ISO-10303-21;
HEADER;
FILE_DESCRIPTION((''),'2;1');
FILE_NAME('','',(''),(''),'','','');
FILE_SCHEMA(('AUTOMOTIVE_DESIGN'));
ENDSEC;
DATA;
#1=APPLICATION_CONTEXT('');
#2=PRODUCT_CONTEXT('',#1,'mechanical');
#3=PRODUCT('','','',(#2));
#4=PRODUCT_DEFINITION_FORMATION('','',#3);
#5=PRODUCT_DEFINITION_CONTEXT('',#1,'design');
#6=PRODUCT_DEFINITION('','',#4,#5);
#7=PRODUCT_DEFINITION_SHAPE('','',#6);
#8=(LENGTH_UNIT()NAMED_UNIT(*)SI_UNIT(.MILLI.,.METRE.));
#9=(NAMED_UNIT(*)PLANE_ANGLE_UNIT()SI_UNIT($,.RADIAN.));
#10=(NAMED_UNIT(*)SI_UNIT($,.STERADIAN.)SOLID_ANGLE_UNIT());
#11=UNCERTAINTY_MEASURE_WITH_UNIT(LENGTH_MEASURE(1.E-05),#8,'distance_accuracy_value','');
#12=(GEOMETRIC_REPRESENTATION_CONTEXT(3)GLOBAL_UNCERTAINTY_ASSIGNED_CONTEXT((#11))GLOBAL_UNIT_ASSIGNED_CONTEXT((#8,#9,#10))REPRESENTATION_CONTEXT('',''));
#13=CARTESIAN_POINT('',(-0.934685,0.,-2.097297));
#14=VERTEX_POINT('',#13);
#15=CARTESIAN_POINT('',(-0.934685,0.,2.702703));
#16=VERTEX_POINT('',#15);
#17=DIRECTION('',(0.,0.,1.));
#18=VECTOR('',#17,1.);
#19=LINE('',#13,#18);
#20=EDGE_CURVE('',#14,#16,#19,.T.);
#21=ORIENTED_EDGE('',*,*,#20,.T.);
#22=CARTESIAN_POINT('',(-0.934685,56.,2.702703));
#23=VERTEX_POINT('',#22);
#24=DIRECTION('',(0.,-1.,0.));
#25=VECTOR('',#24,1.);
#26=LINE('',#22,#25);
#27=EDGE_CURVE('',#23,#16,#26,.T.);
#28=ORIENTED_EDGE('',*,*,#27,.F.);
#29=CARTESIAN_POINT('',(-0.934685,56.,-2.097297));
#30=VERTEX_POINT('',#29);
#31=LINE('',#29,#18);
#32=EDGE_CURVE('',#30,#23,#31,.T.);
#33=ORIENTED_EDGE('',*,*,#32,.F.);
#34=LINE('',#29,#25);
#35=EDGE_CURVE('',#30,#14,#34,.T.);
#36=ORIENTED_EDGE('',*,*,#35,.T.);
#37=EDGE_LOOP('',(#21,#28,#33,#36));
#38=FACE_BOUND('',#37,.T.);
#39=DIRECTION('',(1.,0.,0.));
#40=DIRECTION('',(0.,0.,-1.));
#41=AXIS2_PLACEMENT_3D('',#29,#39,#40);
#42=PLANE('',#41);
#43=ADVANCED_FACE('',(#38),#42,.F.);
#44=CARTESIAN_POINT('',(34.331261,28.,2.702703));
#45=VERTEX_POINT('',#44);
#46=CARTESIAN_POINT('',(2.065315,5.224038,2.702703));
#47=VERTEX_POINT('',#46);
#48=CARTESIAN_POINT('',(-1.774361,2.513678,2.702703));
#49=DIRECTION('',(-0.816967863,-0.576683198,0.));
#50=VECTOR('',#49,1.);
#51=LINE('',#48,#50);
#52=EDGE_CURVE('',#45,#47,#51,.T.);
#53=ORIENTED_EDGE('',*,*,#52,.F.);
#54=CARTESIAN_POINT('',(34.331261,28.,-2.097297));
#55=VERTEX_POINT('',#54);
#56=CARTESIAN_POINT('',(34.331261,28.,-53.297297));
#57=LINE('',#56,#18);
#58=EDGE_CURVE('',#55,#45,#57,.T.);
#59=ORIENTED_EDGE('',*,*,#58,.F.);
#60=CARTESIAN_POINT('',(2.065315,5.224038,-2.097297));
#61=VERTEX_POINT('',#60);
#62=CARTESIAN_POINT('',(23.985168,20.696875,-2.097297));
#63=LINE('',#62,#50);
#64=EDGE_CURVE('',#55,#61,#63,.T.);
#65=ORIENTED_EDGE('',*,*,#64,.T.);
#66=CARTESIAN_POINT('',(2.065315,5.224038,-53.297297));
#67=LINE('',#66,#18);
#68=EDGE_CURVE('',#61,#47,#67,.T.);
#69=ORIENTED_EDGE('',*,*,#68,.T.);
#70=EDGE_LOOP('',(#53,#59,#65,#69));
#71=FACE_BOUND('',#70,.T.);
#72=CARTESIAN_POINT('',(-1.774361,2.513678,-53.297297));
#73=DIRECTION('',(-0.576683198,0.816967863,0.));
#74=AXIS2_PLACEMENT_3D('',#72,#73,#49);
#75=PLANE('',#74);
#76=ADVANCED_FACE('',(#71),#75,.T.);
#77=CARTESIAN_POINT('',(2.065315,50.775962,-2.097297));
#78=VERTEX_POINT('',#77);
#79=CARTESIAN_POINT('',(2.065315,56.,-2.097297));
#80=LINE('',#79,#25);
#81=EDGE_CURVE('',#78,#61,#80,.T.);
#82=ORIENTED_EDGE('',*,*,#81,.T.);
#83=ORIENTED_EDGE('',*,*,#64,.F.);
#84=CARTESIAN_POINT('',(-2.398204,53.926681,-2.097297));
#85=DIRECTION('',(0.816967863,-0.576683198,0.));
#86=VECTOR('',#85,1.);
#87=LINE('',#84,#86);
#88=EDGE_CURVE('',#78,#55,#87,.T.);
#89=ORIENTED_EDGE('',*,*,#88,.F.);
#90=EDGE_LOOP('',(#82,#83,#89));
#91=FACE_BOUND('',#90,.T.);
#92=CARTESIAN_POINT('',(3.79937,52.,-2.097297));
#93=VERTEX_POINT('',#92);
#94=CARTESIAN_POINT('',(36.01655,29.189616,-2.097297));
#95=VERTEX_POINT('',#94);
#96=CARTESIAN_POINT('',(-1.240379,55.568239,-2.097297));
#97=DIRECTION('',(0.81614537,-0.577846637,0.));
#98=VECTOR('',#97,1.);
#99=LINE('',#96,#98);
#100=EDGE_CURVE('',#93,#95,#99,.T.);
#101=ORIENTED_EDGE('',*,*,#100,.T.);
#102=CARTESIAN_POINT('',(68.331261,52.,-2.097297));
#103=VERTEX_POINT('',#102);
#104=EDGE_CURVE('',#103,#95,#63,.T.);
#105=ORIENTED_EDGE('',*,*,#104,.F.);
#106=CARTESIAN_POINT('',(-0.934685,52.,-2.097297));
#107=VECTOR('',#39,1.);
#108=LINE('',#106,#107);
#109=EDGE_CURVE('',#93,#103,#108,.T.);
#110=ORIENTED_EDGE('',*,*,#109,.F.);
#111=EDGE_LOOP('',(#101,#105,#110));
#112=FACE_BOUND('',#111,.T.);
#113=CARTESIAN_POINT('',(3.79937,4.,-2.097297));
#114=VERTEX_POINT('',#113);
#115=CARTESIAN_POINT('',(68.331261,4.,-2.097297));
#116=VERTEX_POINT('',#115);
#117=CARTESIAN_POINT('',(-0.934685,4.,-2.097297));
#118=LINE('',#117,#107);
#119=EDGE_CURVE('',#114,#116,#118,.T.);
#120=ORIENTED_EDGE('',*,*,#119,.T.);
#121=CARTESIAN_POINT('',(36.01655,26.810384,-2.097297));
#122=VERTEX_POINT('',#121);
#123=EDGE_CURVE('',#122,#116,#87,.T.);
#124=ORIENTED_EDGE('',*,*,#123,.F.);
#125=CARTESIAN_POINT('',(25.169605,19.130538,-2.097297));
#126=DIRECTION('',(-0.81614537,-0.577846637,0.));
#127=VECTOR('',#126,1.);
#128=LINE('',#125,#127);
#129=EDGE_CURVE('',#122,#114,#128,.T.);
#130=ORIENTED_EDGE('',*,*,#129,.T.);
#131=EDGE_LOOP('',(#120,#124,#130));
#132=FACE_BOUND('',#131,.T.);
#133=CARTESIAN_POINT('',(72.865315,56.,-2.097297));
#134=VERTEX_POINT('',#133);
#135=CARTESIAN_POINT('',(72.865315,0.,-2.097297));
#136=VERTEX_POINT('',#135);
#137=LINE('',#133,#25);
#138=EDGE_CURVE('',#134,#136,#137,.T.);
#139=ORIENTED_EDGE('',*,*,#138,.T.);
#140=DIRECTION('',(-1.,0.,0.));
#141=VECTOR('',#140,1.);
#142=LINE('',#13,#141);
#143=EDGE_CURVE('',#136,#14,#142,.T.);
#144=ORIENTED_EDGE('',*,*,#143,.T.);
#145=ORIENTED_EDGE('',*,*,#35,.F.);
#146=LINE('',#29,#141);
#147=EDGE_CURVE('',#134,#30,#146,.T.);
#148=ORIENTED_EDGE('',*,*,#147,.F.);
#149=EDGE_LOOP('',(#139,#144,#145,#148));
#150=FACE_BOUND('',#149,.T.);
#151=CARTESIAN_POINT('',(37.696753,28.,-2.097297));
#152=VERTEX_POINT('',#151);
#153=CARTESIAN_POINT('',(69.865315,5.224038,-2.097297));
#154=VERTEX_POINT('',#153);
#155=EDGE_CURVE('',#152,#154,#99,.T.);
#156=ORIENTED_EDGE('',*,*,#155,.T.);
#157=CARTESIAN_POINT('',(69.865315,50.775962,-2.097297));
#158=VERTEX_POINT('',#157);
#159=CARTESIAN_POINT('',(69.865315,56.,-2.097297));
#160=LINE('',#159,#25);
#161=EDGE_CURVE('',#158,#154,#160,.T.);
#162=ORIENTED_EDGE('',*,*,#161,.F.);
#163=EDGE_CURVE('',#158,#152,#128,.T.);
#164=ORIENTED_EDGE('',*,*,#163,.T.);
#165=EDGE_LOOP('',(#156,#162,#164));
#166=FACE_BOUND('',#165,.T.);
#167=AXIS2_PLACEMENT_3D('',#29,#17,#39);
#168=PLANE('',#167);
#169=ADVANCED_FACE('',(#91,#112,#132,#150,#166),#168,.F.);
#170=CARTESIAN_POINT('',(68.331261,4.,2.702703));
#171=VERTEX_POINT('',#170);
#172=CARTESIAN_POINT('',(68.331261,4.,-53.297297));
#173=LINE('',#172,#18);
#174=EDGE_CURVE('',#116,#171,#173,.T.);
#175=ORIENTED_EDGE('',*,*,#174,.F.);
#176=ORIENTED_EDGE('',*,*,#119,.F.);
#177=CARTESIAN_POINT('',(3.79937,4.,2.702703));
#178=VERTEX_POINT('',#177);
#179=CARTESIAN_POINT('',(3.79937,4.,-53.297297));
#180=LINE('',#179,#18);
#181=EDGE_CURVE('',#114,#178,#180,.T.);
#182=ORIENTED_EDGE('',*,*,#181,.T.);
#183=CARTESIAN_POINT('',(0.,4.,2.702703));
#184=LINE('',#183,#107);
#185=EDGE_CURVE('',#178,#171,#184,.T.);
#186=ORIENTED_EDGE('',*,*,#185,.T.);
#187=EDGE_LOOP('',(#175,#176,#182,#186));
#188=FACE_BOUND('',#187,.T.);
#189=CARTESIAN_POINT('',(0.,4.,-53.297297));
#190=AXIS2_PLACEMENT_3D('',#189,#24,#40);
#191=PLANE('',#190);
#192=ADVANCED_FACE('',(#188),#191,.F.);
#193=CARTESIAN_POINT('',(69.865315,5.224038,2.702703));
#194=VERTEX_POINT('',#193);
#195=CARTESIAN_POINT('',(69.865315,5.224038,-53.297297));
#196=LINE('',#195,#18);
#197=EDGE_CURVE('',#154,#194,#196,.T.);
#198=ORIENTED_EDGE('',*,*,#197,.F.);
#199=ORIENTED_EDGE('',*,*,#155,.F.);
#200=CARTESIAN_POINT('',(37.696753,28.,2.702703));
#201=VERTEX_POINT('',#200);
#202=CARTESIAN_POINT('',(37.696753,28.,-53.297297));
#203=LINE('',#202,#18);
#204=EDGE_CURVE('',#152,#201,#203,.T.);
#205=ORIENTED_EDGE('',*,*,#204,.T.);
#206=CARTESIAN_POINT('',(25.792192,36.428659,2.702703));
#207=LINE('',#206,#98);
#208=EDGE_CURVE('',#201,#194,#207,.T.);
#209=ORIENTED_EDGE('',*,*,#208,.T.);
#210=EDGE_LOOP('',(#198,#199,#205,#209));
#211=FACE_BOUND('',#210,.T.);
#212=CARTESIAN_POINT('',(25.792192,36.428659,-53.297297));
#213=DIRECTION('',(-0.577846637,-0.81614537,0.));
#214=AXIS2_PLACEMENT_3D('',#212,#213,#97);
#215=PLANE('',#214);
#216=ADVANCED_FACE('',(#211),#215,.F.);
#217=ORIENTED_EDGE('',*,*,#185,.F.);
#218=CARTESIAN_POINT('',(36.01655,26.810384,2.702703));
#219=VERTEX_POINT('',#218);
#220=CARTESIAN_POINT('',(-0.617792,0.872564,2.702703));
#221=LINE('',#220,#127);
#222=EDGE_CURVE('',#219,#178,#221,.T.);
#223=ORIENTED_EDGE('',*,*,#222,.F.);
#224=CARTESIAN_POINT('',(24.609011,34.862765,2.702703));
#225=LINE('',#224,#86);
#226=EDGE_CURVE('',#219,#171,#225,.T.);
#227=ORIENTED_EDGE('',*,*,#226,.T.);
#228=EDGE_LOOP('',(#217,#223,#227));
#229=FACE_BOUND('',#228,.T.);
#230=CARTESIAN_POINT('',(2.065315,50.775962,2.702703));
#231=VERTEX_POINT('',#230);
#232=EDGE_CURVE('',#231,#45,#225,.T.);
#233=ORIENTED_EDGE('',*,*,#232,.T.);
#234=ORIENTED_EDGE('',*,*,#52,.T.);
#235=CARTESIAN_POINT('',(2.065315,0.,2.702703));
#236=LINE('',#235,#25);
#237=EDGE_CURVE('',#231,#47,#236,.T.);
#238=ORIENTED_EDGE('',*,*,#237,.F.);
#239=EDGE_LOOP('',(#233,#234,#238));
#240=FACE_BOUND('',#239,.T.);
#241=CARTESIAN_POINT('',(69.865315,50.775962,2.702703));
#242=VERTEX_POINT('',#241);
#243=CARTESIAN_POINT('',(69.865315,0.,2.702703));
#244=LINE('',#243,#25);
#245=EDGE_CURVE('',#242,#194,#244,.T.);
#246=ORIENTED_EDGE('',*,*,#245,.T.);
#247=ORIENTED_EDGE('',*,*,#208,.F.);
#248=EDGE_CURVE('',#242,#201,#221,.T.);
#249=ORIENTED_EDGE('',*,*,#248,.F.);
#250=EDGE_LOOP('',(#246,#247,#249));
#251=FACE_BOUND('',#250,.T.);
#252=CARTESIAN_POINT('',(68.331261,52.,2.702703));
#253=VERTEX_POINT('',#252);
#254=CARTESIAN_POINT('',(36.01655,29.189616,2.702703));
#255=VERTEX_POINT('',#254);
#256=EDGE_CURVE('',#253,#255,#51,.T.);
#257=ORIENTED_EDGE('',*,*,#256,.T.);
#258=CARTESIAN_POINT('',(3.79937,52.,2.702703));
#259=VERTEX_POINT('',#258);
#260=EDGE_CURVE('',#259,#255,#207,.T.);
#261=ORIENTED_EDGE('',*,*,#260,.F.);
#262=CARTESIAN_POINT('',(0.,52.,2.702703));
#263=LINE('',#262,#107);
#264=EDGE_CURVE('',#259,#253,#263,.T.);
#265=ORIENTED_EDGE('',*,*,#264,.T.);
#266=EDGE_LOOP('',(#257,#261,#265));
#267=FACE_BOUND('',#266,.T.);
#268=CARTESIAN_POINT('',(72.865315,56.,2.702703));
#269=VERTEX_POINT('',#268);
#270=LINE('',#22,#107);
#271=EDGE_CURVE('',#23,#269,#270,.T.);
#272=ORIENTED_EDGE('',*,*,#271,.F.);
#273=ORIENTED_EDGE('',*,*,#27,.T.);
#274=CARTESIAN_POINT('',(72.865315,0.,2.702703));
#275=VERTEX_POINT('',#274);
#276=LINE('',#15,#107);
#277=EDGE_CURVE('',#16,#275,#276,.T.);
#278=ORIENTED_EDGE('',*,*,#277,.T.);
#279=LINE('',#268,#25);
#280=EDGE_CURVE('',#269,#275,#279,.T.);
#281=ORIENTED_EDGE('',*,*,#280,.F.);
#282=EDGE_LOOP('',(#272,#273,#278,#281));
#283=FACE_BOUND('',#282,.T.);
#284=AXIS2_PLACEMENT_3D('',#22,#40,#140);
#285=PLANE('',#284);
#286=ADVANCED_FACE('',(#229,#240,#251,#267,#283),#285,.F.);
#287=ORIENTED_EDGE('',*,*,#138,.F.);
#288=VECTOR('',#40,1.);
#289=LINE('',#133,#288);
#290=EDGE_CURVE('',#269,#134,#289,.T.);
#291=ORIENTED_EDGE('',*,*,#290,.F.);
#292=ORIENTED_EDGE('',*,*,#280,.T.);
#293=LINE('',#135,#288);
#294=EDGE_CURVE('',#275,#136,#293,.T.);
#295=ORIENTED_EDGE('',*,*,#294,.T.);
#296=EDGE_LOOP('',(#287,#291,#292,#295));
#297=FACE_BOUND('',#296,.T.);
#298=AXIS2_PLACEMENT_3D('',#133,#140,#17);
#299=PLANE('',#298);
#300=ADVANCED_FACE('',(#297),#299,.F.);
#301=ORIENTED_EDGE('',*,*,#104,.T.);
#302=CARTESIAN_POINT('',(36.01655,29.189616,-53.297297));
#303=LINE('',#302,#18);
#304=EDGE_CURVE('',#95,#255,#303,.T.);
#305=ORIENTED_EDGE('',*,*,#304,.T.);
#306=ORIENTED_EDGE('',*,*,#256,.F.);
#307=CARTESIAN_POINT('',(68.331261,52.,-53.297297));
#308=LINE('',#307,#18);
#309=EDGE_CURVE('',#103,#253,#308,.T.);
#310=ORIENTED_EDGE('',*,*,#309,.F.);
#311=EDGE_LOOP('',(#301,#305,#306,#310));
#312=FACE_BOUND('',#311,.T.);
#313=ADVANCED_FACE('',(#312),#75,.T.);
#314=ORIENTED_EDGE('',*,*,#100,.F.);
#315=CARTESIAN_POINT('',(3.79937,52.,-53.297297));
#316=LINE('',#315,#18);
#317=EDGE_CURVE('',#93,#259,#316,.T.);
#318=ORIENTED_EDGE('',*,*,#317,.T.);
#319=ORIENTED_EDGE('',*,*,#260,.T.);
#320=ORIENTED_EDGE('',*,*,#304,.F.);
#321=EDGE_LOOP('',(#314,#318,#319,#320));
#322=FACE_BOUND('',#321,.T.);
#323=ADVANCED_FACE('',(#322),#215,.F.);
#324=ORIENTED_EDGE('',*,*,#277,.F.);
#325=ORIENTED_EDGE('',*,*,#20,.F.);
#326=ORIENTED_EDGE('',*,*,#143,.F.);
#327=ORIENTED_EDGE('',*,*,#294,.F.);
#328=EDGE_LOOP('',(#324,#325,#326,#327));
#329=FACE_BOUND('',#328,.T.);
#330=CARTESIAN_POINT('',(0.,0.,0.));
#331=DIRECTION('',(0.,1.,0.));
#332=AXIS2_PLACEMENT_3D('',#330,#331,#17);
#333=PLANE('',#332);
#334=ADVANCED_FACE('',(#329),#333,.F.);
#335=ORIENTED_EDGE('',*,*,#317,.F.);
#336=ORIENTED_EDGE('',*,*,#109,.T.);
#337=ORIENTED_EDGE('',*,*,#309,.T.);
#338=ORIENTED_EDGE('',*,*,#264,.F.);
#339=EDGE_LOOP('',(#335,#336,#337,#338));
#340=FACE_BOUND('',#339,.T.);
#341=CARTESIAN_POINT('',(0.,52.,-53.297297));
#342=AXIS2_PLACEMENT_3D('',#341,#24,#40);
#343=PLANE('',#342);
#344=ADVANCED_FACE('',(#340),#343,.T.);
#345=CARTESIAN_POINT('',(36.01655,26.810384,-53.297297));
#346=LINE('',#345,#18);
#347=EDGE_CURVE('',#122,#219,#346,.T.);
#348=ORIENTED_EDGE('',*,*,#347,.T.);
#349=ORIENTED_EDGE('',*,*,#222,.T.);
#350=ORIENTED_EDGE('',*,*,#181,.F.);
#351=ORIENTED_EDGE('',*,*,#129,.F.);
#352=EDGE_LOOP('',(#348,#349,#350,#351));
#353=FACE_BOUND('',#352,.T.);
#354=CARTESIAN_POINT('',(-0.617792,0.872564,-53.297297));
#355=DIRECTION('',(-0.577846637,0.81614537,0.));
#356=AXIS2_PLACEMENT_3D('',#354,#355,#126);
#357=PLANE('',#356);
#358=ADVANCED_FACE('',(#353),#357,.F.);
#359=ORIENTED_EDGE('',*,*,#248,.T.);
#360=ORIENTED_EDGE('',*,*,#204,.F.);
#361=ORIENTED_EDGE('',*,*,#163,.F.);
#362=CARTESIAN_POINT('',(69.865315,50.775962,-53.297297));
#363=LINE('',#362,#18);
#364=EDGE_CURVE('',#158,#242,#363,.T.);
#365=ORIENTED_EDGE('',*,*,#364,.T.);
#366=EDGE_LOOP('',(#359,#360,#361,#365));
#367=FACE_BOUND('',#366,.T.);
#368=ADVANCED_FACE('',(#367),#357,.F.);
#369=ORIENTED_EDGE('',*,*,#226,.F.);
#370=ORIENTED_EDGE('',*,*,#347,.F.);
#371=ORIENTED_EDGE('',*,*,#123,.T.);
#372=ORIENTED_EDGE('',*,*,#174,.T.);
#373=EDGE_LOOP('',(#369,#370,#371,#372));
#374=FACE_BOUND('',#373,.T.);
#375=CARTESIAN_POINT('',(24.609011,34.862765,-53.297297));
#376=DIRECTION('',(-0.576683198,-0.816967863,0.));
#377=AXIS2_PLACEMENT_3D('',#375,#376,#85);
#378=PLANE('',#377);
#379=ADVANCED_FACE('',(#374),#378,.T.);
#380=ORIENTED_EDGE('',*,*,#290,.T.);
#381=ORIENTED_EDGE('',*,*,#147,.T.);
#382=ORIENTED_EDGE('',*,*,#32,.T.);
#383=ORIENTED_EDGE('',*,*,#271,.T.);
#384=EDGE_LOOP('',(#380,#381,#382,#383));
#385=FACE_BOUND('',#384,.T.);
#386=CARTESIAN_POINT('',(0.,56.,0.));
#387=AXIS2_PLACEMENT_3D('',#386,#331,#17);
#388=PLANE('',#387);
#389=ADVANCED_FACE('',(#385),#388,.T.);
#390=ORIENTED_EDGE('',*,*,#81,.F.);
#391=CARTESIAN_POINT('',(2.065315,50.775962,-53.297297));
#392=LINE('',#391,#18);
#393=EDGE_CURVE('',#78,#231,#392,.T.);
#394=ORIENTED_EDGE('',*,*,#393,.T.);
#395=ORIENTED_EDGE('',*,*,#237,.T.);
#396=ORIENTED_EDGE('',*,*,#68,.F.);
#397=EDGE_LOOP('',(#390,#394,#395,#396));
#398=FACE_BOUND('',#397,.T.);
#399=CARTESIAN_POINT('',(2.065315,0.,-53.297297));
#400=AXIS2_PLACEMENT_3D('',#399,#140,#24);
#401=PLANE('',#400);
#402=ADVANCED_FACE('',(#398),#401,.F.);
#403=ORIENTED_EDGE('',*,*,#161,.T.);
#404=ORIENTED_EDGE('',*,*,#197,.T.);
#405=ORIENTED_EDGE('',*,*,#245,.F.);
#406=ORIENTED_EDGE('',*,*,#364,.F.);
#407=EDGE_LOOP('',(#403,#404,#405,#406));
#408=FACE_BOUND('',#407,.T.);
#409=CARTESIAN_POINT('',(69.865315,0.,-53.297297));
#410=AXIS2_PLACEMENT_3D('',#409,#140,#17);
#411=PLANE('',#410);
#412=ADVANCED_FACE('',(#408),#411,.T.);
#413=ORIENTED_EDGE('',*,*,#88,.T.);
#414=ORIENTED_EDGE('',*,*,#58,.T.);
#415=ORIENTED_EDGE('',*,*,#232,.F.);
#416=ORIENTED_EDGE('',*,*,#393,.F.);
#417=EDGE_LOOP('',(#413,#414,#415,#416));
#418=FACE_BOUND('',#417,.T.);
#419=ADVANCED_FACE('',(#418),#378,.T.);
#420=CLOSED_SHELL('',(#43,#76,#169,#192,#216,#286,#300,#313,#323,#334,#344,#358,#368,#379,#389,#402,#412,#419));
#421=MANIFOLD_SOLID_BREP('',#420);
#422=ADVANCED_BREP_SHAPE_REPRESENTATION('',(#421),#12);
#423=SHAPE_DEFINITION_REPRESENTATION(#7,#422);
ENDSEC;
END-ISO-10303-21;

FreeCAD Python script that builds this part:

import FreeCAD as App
import Part
import Sketcher

doc = App.newDocument("Part")
body = doc.addObject("PartDesign::Body", "Body")

# Sketch on XZ plane
sketch1 = body.newObject("Sketcher::SketchObject", "Sketch")
sketch1.AttachmentSupport = (doc.getObject("XZ_Plane"), [""])
sketch1.MapMode = "FlatFace"
sketch1.addGeometry(Part.LineSegment(App.Vector(-0.9, -2.1, 0), App.Vector(-0.9, 2.7, 0)), False)
sketch1.addGeometry(Part.LineSegment(App.Vector(-0.9, 2.7, 0), App.Vector(72.9, 2.7, 0)), False)
sketch1.addGeometry(Part.LineSegment(App.Vector(72.9, 2.7, 0), App.Vector(72.9, -2.1, 0)), False)
sketch1.addGeometry(Part.LineSegment(App.Vector(72.9, -2.1, 0), App.Vector(-0.9, -2.1, 0)), False)
sketch1.addConstraint(Sketcher.Constraint("Coincident", 0, 2, 1, 1))
sketch1.addConstraint(Sketcher.Constraint("Coincident", 1, 2, 2, 1))
sketch1.addConstraint(Sketcher.Constraint("Coincident", 2, 2, 3, 1))
sketch1.addConstraint(Sketcher.Constraint("Coincident", 3, 2, 0, 1))
sketch1.addConstraint(Sketcher.Constraint("Vertical", 0))
sketch1.addConstraint(Sketcher.Constraint("Horizontal", 1))
sketch1.addConstraint(Sketcher.Constraint("Vertical", 2))
sketch1.addConstraint(Sketcher.Constraint("Horizontal", 3))
sketch1.addConstraint(Sketcher.Constraint("DistanceX", 1, 1, 1, 2, 73.8))
sketch1.addConstraint(Sketcher.Constraint("DistanceY", 0, 1, 0, 2, 4.8))
sketch1.addConstraint(Sketcher.Constraint("DistanceX", 0, 2, -1, 1, 0.934685))
sketch1.addConstraint(Sketcher.Constraint("DistanceY", -1, 1, 0, 2, 2.702703))
pad1 = body.newObject("PartDesign::Pad", "Pad")
pad1.Profile = sketch1
pad1.Length = 56
pad1.Reversed = True

# Sketch on XY plane
sketch2 = body.newObject("Sketcher::SketchObject", "Sketch001")
sketch2.AttachmentSupport = (doc.getObject("XY_Plane"), [""])
sketch2.MapMode = "FlatFace"
sketch2.AttachmentOffset = App.Placement(App.Vector(0, 0, 2.702703), App.Rotation())
sketch2.addGeometry(Part.LineSegment(App.Vector(68, 52, 0), App.Vector(4, 52, 0)), False)
sketch2.addGeometry(Part.LineSegment(App.Vector(4, 52, 0), App.Vector(36, 29, 0)), False)
sketch2.addGeometry(Part.LineSegment(App.Vector(36, 29, 0), App.Vector(68, 52, 0)), False)
sketch2.addGeometry(Part.LineSegment(App.Vector(34, 28, 0), App.Vector(2, 51, 0)), False)
sketch2.addGeometry(Part.LineSegment(App.Vector(2, 51, 0), App.Vector(2, 5, 0)), False)
sketch2.addGeometry(Part.LineSegment(App.Vector(2, 5, 0), App.Vector(34, 28, 0)), False)
sketch2.addGeometry(Part.LineSegment(App.Vector(36, 27, 0), App.Vector(4, 4, 0)), False)
sketch2.addGeometry(Part.LineSegment(App.Vector(4, 4, 0), App.Vector(68, 4, 0)), False)
sketch2.addGeometry(Part.LineSegment(App.Vector(68, 4, 0), App.Vector(36, 27, 0)), False)
sketch2.addGeometry(Part.LineSegment(App.Vector(70, 5, 0), App.Vector(70, 51, 0)), False)
sketch2.addGeometry(Part.LineSegment(App.Vector(70, 51, 0), App.Vector(38, 28, 0)), False)
sketch2.addGeometry(Part.LineSegment(App.Vector(38, 28, 0), App.Vector(70, 5, 0)), False)
sketch2.addConstraint(Sketcher.Constraint("Coincident", 0, 2, 1, 1))
sketch2.addConstraint(Sketcher.Constraint("Coincident", 1, 2, 2, 1))
sketch2.addConstraint(Sketcher.Constraint("Coincident", 2, 2, 0, 1))
sketch2.addConstraint(Sketcher.Constraint("Coincident", 3, 2, 4, 1))
sketch2.addConstraint(Sketcher.Constraint("Coincident", 4, 2, 5, 1))
sketch2.addConstraint(Sketcher.Constraint("Coincident", 5, 2, 3, 1))
sketch2.addConstraint(Sketcher.Constraint("Coincident", 6, 2, 7, 1))
sketch2.addConstraint(Sketcher.Constraint("Coincident", 7, 2, 8, 1))
sketch2.addConstraint(Sketcher.Constraint("Coincident", 8, 2, 6, 1))
sketch2.addConstraint(Sketcher.Constraint("Coincident", 9, 2, 10, 1))
sketch2.addConstraint(Sketcher.Constraint("Coincident", 10, 2, 11, 1))
sketch2.addConstraint(Sketcher.Constraint("Coincident", 11, 2, 9, 1))
sketch2.addConstraint(Sketcher.Constraint("Horizontal", 0))
sketch2.addConstraint(Sketcher.Constraint("Vertical", 4))
sketch2.addConstraint(Sketcher.Constraint("Horizontal", 7))
sketch2.addConstraint(Sketcher.Constraint("Vertical", 9))
sketch2.addConstraint(Sketcher.Constraint("Parallel", 2, 5))
sketch2.addConstraint(Sketcher.Constraint("Parallel", 3, 8))
sketch2.addConstraint(Sketcher.Constraint("Parallel", 6, 10))
sketch2.addConstraint(Sketcher.Constraint("Parallel", 1, 11))
sketch2.addConstraint(Sketcher.Constraint("Horizontal", 3, 2, 9, 2))
sketch2.addConstraint(Sketcher.Constraint("Horizontal", 5, 2, 10, 2))
sketch2.addConstraint(Sketcher.Constraint("Horizontal", 4, 2, 11, 2))
sketch2.addConstraint(Sketcher.Constraint("Vertical", 0, 2, 6, 2))
sketch2.addConstraint(Sketcher.Constraint("Vertical", 2, 2, 7, 2))
sketch2.addConstraint(Sketcher.Constraint("Equal", 3, 5))
sketch2.addConstraint(Sketcher.Constraint("DistanceY", -1, 1, 0, 2, 52.0))
sketch2.addConstraint(Sketcher.Constraint("DistanceY", -1, 1, 5, 2, 28.0))
sketch2.addConstraint(Sketcher.Constraint("DistanceY", -1, 1, 6, 2, 4.0))
sketch2.addConstraint(Sketcher.Constraint("DistanceX", 5, 2, 2, 2, 34.0))
sketch2.addConstraint(Sketcher.Constraint("DistanceX", 0, 2, 0, 1, 64.531891))
sketch2.addConstraint(Sketcher.Constraint("DistanceY", 4, 2, 4, 1, 45.551923))
sketch2.addConstraint(Sketcher.Constraint("DistanceX", -1, 1, 0, 2, 3.79937))
sketch2.addConstraint(Sketcher.Constraint("DistanceX", -1, 1, 1, 2, 36.01655))
sketch2.addConstraint(Sketcher.Constraint("DistanceY", 8, 2, 1, 2, 2.379232))
sketch2.addConstraint(Sketcher.Constraint("DistanceX", 5, 2, 10, 2, 3.365492))
pocket1 = body.newObject("PartDesign::Pocket", "Pocket")
pocket1.Profile = sketch2
pocket1.Length = 56

doc.recompute()
